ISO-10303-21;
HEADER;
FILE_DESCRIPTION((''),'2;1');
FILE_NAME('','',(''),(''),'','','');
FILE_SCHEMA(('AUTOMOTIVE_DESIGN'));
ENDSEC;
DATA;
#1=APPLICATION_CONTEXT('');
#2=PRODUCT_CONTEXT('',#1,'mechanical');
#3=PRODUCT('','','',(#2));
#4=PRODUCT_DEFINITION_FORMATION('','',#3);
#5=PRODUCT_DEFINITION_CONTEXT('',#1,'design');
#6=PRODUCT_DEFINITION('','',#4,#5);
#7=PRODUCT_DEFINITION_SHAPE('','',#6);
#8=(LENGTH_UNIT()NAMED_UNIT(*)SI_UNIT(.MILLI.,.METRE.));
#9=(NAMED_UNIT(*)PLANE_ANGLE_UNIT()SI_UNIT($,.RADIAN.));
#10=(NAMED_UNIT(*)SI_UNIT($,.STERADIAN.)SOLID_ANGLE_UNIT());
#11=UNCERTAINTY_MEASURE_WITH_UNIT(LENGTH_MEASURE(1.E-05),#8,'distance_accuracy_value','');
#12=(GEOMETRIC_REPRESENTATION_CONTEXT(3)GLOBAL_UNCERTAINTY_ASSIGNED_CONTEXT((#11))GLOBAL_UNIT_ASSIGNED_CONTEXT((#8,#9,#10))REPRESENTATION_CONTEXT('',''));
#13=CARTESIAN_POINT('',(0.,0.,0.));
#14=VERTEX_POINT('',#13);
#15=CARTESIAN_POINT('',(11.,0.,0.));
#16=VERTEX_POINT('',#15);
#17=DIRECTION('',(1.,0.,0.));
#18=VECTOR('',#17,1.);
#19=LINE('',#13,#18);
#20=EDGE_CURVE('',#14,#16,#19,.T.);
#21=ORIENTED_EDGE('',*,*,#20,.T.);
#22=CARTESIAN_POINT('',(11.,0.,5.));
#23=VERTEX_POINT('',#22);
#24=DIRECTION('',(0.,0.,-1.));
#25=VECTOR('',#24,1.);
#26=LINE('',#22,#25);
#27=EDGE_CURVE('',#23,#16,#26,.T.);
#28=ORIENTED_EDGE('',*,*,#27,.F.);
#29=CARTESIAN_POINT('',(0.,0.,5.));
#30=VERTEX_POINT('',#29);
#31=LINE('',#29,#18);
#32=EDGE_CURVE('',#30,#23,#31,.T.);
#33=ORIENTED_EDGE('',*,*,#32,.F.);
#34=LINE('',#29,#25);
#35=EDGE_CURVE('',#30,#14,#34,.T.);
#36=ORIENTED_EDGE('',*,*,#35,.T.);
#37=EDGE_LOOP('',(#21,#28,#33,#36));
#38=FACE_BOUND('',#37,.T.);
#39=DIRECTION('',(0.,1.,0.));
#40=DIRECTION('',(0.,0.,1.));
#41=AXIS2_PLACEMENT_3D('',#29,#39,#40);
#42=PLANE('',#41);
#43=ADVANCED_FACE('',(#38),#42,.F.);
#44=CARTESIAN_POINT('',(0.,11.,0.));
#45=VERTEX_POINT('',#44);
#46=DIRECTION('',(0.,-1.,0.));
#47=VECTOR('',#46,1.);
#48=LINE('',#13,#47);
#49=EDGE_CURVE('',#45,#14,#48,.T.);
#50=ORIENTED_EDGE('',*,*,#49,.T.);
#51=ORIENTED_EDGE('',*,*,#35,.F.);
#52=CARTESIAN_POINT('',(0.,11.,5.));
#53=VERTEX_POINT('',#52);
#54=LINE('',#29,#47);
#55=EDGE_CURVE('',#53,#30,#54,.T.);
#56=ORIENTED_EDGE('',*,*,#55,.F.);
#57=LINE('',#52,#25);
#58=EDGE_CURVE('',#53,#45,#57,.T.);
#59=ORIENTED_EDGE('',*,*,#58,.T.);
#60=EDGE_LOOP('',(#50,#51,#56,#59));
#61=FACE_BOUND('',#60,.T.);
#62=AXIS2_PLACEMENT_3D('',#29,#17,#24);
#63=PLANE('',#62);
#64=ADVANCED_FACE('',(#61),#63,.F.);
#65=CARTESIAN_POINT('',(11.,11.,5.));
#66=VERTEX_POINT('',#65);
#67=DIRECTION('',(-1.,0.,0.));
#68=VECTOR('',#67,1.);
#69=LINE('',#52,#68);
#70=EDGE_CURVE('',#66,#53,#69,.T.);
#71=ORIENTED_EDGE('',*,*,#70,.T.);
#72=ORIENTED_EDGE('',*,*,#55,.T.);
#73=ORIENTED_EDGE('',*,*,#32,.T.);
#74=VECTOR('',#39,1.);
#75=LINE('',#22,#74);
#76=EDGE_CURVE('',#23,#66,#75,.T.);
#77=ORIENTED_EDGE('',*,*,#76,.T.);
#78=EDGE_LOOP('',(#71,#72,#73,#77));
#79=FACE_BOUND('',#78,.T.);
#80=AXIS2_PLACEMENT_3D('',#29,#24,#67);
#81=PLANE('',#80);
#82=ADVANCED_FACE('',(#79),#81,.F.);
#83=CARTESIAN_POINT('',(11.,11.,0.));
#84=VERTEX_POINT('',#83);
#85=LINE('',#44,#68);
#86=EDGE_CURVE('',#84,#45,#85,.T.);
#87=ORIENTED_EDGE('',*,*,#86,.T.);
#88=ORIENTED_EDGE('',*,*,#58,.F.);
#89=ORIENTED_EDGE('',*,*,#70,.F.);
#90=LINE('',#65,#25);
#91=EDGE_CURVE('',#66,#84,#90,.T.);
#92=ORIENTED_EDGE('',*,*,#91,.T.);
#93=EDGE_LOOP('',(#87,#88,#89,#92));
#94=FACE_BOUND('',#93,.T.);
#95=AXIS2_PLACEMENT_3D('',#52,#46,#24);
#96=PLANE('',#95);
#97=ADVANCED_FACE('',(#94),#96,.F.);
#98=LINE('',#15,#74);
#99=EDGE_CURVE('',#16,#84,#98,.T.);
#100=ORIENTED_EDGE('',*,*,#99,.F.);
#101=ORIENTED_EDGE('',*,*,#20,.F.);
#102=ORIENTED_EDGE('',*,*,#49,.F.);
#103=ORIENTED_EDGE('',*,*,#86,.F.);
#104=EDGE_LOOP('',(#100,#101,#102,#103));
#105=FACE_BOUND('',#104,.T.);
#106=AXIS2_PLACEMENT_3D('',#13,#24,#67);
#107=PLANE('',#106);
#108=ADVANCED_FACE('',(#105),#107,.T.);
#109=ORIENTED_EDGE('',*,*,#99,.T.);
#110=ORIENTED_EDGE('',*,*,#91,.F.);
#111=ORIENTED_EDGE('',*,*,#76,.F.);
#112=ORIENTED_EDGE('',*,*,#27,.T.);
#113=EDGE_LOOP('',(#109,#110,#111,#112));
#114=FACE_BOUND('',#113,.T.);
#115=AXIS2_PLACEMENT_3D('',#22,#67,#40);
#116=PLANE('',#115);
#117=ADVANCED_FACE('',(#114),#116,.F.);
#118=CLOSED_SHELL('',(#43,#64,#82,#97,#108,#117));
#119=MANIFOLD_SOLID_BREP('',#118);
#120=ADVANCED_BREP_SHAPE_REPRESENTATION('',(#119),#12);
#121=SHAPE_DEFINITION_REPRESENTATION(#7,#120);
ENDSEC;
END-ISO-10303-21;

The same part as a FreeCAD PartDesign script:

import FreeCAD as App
import Part
import Sketcher
from FreeCAD import Vector
Q = App.Units.Quantity

doc = App.newDocument("Part")
params = doc.addObject("Spreadsheet::Sheet", "Params")
for row, (alias, value) in enumerate([
    ("sketch1_width", "11 mm"),
    ("pad1_length", "5 mm"),
], start=1):
    params.set(f"A{row}", alias)
    params.set(f"B{row}", "=" + value)
    params.setAlias(f"B{row}", alias)

body = doc.addObject("PartDesign::Body", "Body")

# Sketch on XY plane
sketch1 = body.newObject("Sketcher::SketchObject", "Sketch")
sketch1.AttachmentSupport = (doc.getObject("XY_Plane"), [""])
sketch1.MapMode = "FlatFace"
sketch1.addGeometry([
    Part.LineSegment(Vector(0, 11, 0), Vector(0, 0, 0)),
    Part.LineSegment(Vector(0, 0, 0), Vector(11, 0, 0)),
    Part.LineSegment(Vector(11, 0, 0), Vector(11, 11, 0)),
    Part.LineSegment(Vector(11, 11, 0), Vector(0, 11, 0)),
], False)
sketch1.addConstraint([
    Sketcher.Constraint("Coincident", 0, 2, 1, 1),
    Sketcher.Constraint("Coincident", 1, 2, 2, 1),
    Sketcher.Constraint("Coincident", 2, 2, 3, 1),
    Sketcher.Constraint("Coincident", 3, 2, 0, 1),
    Sketcher.Constraint("Vertical", 0),
    Sketcher.Constraint("Horizontal", 1),
    Sketcher.Constraint("Vertical", 2),
    Sketcher.Constraint("Horizontal", 3),
    Sketcher.Constraint("Coincident", 0, 2, -1, 1),
    Sketcher.Constraint("Equal", 3, 0),
    Sketcher.Constraint("DistanceX", 1, 1, 1, 2, Q("11 mm")),
])
sketch1.setExpression("Constraints[10]", "Params.sketch1_width")
pad1 = body.newObject("PartDesign::Pad", "Pad")
pad1.Profile = sketch1
pad1.setExpression("Length", "Params.pad1_length")

doc.recompute()
